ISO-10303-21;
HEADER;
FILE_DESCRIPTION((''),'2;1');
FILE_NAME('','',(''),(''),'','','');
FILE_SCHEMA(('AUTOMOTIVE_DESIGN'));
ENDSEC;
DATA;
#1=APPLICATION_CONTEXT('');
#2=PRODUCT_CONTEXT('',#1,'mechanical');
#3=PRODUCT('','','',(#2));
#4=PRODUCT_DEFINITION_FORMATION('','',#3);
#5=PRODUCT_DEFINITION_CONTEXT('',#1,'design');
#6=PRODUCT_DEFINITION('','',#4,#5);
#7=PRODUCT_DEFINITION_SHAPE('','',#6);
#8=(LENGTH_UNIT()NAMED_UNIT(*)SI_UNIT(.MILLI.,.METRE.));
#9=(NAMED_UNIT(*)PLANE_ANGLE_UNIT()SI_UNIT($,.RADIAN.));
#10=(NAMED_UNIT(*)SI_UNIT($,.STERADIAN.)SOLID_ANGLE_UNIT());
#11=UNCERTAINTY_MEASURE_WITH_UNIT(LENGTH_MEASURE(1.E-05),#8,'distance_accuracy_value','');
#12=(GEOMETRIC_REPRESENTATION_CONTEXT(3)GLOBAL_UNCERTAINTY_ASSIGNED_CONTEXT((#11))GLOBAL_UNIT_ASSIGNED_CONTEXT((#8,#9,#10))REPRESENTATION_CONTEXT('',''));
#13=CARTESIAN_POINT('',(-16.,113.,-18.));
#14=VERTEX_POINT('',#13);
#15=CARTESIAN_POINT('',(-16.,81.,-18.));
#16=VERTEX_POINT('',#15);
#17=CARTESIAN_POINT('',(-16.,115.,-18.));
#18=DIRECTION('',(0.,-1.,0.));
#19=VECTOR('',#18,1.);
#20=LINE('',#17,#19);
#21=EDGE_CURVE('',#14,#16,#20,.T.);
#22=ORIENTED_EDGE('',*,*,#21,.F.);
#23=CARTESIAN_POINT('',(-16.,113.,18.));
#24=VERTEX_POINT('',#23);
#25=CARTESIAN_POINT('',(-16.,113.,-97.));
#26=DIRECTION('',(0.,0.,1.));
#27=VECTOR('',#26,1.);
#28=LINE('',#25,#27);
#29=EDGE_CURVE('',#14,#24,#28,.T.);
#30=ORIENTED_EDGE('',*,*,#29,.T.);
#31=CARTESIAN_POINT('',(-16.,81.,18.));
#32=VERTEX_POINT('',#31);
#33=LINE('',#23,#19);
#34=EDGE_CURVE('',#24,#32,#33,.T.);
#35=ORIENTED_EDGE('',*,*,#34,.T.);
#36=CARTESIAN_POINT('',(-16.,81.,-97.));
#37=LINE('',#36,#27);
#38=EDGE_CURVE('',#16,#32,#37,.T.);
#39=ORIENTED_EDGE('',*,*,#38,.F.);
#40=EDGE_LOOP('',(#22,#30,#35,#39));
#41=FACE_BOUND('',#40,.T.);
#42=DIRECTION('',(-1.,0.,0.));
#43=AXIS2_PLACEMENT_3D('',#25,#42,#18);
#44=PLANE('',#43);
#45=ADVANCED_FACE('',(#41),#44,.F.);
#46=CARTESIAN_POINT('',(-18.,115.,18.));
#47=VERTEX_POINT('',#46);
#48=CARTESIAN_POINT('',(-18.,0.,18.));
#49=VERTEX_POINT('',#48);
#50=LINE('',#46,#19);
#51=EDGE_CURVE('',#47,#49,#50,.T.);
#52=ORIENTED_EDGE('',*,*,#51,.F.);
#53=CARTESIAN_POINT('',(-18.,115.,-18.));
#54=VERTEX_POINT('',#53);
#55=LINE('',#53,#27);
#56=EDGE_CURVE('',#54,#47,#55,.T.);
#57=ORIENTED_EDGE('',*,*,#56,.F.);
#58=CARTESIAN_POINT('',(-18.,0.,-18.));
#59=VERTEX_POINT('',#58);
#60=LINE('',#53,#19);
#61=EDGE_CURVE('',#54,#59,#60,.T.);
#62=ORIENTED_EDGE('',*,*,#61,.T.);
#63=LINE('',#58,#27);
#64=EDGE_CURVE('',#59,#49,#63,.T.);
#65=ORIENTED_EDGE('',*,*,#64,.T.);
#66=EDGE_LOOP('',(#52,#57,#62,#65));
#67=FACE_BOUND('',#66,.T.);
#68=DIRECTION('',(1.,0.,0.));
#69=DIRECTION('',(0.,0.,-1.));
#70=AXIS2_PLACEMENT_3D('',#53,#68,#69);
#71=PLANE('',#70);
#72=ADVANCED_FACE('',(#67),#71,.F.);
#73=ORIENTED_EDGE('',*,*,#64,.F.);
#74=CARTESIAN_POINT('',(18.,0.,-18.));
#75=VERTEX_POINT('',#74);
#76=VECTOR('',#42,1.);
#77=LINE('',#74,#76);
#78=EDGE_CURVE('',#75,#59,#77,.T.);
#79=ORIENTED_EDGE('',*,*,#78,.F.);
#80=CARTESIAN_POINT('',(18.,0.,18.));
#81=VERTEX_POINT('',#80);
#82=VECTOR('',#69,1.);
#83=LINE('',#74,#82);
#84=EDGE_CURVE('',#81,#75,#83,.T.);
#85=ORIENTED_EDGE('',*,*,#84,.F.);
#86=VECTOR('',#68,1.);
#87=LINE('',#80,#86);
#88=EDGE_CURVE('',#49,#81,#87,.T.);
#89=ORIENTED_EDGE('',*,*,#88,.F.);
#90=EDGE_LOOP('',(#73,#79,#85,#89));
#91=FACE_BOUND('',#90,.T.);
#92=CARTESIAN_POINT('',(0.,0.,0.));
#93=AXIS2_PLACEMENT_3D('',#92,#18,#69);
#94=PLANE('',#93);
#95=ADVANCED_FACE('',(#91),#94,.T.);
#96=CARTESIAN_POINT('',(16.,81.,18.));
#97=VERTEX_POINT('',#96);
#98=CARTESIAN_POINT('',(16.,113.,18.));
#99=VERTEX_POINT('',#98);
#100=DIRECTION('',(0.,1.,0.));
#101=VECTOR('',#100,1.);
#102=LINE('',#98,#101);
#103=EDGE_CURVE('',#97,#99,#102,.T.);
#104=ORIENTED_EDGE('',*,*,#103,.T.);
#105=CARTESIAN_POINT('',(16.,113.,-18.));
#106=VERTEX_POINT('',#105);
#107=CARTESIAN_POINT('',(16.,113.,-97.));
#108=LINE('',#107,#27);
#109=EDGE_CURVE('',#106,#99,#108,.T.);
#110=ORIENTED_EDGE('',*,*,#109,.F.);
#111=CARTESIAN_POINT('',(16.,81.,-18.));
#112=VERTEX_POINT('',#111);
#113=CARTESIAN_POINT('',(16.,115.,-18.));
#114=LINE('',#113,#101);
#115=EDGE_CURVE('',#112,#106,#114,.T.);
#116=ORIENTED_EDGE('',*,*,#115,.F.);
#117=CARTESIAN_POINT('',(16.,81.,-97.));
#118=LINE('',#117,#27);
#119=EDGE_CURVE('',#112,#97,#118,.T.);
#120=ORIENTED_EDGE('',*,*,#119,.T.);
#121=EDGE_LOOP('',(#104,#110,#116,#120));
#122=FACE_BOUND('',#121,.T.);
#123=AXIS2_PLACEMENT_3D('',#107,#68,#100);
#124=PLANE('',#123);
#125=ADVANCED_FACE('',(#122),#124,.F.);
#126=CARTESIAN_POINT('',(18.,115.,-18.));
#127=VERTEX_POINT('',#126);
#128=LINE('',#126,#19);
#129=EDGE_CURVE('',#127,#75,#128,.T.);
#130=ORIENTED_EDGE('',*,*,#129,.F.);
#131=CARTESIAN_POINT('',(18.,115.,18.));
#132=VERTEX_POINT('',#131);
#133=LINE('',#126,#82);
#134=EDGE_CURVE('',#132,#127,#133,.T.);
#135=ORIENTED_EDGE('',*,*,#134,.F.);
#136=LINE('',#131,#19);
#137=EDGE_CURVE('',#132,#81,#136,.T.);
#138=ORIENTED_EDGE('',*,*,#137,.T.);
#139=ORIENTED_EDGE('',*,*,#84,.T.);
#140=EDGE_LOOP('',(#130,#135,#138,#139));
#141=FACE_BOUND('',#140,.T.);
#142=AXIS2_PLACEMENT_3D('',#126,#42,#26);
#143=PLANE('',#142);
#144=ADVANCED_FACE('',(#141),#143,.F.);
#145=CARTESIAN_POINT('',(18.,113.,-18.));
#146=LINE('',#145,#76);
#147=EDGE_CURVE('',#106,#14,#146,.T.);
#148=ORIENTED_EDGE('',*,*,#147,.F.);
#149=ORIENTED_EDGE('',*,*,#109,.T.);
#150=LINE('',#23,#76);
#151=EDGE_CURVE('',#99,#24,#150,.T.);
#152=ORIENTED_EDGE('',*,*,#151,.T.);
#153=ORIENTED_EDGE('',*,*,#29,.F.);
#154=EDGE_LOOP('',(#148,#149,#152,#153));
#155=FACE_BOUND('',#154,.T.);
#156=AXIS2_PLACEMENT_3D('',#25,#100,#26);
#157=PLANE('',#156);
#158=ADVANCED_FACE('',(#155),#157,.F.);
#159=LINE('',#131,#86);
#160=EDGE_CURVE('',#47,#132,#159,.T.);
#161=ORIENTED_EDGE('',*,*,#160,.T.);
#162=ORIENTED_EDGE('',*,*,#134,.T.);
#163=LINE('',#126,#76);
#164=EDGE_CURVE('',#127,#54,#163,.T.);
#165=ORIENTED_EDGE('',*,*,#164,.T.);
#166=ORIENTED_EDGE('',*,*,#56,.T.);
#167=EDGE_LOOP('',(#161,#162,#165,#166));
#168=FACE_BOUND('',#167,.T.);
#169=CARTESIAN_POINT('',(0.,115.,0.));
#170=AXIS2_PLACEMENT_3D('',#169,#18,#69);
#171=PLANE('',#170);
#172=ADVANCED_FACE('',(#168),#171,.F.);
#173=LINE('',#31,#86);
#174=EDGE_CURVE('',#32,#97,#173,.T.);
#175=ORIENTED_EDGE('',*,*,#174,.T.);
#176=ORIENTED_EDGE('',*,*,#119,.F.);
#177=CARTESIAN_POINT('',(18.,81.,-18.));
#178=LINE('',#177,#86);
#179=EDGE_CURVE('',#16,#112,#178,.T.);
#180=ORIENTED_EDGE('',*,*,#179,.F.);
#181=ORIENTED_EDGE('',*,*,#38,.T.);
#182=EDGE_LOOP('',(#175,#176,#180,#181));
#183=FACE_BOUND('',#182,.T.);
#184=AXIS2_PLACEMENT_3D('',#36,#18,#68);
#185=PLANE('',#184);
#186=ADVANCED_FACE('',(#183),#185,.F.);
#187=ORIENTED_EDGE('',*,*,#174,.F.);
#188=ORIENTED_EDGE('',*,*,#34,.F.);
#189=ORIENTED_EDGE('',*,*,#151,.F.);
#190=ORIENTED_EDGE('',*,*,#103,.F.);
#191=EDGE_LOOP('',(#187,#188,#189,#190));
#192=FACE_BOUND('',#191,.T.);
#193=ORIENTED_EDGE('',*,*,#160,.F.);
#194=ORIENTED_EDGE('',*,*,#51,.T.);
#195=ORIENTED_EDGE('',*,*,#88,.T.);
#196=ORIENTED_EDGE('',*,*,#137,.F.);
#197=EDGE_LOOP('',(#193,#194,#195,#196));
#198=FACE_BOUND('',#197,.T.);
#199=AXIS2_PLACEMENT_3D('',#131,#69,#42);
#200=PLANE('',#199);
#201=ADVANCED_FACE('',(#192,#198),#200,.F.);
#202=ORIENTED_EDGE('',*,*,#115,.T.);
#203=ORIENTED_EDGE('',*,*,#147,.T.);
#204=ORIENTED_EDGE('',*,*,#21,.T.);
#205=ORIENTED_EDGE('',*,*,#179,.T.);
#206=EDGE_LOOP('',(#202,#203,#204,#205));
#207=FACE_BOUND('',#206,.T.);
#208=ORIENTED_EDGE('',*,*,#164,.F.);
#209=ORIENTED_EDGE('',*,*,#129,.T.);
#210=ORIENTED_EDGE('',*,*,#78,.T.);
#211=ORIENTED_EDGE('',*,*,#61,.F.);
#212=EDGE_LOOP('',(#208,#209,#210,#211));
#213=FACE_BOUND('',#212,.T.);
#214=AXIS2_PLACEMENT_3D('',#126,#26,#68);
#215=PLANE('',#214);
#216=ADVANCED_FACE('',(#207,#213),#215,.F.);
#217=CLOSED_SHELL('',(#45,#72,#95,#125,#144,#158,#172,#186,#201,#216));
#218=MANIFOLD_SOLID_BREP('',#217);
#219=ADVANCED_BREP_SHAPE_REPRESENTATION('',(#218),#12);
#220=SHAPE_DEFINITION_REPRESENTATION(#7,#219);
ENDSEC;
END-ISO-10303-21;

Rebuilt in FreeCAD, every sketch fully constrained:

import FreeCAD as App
import Part
import Sketcher
from FreeCAD import Vector
Q = App.Units.Quantity


def add_polygon(sketch, points):
    """Adds a closed chain of lines whose ends are joined by coincident constraints."""
    first, n = sketch.GeometryCount, len(points)
    for a, b in zip(points, points[1:] + points[:1]):
        sketch.addGeometry(Part.LineSegment(App.Vector(*a, 0), App.Vector(*b, 0)), False)
    for i in range(n):
        sketch.addConstraint(Sketcher.Constraint("Coincident", first + i, 2, first + (i + 1) % n, 1))

doc = App.newDocument("Part")
body = doc.addObject("PartDesign::Body", "Body")

# Sketch on XZ plane
sketch1 = body.newObject("Sketcher::SketchObject", "Sketch")
sketch1.AttachmentSupport = (doc.getObject("XZ_Plane"), [""])
sketch1.MapMode = "FlatFace"
add_polygon(sketch1, [(-18, -18), (-18, 18), (18, 18), (18, -18)])  # lines 0-3
sketch1.addConstraint([
    Sketcher.Constraint("Vertical", 0),
    Sketcher.Constraint("Horizontal", 1),
    Sketcher.Constraint("Vertical", 2),
    Sketcher.Constraint("Horizontal", 3),
    Sketcher.Constraint("Symmetric", 0, 2, 2, 2, -1, 1),
    Sketcher.Constraint("Equal", 3, 0),
    Sketcher.Constraint("DistanceX", 1, 1, 1, 2, Q("36 mm")),
])
pad1 = body.newObject("PartDesign::Pad", "Pad")
pad1.Profile = sketch1
pad1.Length = 115
pad1.Reversed = True

# Sketch on XY plane
sketch2 = body.newObject("Sketcher::SketchObject", "Sketch001")
sketch2.AttachmentSupport = (doc.getObject("XY_Plane"), [""])
sketch2.MapMode = "FlatFace"
sketch2.AttachmentOffset = App.Placement(Vector(0, 0, 18), App.Rotation())
add_polygon(sketch2, [(-16, 113), (-16, 81), (16, 81), (16, 113)])  # lines 0-3
sketch2.addConstraint([
    Sketcher.Constraint("Vertical", 0),
    Sketcher.Constraint("Horizontal", 1),
    Sketcher.Constraint("Vertical", 2),
    Sketcher.Constraint("Horizontal", 3),
    Sketcher.Constraint("Equal", 3, 0),
    Sketcher.Constraint("DistanceX", 1, 1, 1, 2, Q("32 mm")),
    Sketcher.Constraint("DistanceX", 0, 2, -1, 1, Q("16 mm")),
    Sketcher.Constraint("DistanceY", -1, 1, 0, 2, Q("81 mm")),
])
pocket1 = body.newObject("PartDesign::Pocket", "Pocket")
pocket1.Profile = sketch2
pocket1.Length = 115

doc.recompute()
